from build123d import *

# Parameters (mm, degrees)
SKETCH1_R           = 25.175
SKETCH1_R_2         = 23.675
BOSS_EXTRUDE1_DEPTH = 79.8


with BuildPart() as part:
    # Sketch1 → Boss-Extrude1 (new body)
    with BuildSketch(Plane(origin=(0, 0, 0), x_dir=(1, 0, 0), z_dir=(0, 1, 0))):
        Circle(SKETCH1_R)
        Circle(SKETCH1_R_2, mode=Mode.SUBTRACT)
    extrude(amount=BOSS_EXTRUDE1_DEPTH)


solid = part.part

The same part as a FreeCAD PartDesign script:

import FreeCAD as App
import Part
import Sketcher
Q = App.Units.Quantity

doc = App.newDocument("Part")
body = doc.addObject("PartDesign::Body", "Body")

# Sketch on XZ plane
sketch1 = body.newObject("Sketcher::SketchObject", "Sketch")
sketch1.AttachmentSupport = (doc.getObject("XZ_Plane"), [""])
sketch1.MapMode = "FlatFace"
sketch1.addGeometry(Part.Circle(App.Vector(0, 0, 0), App.Vector(0, 0, 1), 25), False)
sketch1.addGeometry(Part.Circle(App.Vector(0, 0, 0), App.Vector(0, 0, 1), 24), False)
sketch1.addConstraint(Sketcher.Constraint("Coincident", 0, 3, -1, 1))
sketch1.addConstraint(Sketcher.Constraint("Coincident", 1, 3, -1, 1))
sketch1.addConstraint(Sketcher.Constraint("Diameter", 0, Q("50.35 mm")))
sketch1.addConstraint(Sketcher.Constraint("Diameter", 1, Q("47.35 mm")))
pad1 = body.newObject("PartDesign::Pad", "Pad")
pad1.Profile = sketch1
pad1.Length = 79.8
pad1.Reversed = True

doc.recompute()
